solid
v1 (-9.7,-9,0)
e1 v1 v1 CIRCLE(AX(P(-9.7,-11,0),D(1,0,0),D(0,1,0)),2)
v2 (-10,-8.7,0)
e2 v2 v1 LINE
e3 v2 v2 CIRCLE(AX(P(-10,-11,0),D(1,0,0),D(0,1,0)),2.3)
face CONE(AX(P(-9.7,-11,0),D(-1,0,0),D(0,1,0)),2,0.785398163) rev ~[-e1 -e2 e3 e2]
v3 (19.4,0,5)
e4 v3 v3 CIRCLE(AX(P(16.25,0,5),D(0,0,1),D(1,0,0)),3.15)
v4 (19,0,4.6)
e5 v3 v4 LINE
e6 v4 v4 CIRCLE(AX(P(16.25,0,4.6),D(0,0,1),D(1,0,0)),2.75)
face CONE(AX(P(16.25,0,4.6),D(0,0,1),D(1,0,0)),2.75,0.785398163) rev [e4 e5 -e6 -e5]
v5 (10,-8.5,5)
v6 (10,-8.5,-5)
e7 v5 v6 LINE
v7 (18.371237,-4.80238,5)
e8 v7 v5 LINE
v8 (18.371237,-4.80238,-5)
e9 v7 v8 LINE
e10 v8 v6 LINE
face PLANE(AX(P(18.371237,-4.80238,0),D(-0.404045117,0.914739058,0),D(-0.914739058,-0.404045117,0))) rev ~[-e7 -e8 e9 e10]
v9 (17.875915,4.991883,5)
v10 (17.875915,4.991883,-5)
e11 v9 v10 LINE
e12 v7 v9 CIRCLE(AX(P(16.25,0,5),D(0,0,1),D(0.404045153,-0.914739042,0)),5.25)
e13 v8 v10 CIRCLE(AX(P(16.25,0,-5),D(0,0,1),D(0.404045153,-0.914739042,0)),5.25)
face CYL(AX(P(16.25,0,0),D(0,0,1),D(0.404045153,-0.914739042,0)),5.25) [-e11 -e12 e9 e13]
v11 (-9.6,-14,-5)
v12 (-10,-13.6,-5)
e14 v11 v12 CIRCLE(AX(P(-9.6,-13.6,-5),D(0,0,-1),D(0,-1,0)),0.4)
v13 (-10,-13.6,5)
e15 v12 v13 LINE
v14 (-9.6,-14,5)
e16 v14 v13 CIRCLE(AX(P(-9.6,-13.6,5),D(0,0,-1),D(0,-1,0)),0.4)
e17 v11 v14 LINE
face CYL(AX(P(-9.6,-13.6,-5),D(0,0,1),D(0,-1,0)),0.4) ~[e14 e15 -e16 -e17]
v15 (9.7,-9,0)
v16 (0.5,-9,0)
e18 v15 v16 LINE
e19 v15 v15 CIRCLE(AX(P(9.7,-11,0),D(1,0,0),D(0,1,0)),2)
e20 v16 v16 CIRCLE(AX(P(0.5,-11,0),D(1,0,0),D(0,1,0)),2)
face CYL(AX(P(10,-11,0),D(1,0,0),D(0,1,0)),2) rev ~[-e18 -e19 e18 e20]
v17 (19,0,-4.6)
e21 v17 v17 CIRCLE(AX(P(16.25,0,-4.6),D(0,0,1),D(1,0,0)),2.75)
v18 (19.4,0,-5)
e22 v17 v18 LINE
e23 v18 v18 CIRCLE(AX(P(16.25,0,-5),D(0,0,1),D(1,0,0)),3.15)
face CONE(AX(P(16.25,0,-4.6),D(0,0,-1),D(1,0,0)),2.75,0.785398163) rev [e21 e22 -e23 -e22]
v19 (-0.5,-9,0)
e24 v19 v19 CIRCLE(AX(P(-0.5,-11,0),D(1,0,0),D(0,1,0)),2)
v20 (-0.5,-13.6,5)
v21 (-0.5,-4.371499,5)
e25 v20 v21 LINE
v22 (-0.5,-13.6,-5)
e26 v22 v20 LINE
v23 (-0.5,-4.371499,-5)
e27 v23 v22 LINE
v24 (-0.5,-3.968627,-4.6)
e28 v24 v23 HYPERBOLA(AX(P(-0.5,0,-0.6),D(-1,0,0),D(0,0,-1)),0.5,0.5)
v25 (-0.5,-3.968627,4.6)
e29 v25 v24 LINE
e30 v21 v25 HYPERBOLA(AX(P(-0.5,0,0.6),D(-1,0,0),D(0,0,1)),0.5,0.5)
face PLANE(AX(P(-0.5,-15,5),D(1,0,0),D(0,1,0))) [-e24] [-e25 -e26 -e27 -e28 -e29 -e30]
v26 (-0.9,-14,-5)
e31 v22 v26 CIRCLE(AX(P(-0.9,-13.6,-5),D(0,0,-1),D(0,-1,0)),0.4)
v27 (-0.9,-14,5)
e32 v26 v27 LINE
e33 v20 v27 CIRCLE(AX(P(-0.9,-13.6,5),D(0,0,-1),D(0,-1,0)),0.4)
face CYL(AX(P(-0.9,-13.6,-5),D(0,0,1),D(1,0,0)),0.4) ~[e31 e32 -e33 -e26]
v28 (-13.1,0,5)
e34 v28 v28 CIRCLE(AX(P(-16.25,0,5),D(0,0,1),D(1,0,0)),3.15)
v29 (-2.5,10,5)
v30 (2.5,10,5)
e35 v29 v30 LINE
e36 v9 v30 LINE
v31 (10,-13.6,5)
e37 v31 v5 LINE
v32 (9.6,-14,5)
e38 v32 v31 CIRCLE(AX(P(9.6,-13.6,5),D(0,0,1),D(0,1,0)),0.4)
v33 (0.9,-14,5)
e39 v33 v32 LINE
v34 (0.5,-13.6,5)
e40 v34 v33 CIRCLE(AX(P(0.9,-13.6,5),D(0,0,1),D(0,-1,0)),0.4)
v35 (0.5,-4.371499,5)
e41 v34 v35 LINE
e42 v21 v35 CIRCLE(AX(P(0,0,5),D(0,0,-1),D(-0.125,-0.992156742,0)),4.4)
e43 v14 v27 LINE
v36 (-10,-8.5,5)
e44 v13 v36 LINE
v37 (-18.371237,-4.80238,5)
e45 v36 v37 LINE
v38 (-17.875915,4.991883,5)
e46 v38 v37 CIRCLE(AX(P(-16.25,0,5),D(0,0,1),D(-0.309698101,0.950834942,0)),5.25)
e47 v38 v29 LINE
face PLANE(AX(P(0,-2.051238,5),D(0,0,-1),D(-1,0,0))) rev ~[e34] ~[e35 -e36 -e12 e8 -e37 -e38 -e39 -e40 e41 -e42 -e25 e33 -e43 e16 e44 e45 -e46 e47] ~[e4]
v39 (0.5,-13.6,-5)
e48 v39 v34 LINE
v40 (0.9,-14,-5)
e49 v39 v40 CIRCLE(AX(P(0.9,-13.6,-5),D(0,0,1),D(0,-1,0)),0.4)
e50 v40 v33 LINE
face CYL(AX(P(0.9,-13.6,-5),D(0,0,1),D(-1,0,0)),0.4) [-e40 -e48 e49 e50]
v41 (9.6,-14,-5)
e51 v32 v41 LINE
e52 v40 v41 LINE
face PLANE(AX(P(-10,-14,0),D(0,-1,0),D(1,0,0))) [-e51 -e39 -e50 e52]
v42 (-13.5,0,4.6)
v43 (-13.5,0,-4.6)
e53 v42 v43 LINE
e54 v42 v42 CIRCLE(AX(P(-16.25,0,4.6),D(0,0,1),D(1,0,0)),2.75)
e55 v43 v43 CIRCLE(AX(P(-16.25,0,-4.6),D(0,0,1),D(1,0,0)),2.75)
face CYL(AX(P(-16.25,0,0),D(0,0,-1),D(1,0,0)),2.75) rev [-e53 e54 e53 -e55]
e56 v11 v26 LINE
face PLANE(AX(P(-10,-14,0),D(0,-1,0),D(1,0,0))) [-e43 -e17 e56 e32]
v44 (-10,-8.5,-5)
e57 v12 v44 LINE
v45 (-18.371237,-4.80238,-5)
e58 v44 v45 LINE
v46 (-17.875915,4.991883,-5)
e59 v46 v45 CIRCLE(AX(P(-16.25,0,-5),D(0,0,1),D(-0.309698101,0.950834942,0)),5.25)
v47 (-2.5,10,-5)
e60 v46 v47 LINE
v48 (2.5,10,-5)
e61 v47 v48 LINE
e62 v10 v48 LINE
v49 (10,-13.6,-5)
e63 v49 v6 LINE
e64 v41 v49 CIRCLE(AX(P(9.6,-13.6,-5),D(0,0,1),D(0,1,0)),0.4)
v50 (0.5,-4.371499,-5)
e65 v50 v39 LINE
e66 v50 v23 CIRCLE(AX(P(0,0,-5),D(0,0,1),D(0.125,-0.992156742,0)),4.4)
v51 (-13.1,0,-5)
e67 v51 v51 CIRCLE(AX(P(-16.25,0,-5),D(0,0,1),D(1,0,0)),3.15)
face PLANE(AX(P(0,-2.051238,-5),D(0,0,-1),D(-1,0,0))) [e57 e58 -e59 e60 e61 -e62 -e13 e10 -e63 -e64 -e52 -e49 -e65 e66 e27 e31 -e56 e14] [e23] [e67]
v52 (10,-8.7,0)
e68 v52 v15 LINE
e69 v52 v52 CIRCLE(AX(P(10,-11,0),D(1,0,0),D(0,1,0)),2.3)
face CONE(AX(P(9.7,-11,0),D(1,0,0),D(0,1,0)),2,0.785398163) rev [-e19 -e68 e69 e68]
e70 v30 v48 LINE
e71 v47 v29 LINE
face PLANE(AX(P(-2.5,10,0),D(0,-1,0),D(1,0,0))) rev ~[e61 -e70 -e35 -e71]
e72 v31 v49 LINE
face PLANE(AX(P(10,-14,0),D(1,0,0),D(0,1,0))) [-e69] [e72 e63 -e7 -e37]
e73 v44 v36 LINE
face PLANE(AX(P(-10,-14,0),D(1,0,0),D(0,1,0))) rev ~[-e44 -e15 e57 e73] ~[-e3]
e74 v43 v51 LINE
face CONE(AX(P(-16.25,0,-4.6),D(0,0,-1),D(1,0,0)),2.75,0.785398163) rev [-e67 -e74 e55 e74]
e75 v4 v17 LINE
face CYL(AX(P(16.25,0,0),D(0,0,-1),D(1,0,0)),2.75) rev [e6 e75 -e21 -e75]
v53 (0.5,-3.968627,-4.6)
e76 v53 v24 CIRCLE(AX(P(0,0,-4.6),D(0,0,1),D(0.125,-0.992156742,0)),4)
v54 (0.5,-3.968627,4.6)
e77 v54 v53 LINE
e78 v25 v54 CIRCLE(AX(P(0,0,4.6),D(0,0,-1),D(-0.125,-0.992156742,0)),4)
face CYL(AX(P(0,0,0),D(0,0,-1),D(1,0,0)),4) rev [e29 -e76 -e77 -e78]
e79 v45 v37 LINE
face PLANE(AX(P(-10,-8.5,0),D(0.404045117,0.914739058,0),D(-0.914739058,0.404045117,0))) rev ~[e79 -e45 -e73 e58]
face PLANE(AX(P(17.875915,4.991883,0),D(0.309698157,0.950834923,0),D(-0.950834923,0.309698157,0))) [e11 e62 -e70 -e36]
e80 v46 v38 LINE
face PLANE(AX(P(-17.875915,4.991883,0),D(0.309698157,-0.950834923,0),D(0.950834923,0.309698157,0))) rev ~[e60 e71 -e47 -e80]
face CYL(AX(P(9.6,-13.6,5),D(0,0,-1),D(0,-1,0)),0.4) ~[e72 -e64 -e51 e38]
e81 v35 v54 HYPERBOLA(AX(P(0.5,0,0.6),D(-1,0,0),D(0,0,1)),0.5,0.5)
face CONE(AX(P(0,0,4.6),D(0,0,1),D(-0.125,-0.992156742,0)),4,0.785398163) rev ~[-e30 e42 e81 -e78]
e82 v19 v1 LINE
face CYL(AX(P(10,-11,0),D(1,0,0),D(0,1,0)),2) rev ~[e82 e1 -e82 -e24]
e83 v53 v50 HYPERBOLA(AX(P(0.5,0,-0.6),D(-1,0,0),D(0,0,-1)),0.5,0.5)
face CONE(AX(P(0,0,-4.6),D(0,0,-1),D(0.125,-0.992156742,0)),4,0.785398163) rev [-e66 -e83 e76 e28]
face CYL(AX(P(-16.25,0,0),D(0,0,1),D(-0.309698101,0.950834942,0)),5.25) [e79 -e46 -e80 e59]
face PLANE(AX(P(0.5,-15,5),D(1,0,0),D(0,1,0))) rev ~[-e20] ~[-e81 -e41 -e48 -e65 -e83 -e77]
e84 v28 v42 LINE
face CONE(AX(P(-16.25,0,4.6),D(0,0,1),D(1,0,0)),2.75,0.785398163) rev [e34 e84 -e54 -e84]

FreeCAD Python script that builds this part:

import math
import FreeCAD as App
import Part
import Sketcher


def edges_at(feature, points):
    """Names of the edges that pass closest to the given points."""
    edges = feature.Shape.Edges
    near = lambda p: min(range(len(edges)), key=lambda i: edges[i].distToShape(Part.Vertex(*p))[0])
    return sorted({f"Edge{near(p) + 1}" for p in points})


def add_polygon(sketch, points):
    """Adds a closed chain of lines whose ends are joined by coincident constraints."""
    first, n = sketch.GeometryCount, len(points)
    for a, b in zip(points, points[1:] + points[:1]):
        sketch.addGeometry(Part.LineSegment(App.Vector(*a, 0), App.Vector(*b, 0)), False)
    for i in range(n):
        sketch.addConstraint(Sketcher.Constraint("Coincident", first + i, 2, first + (i + 1) % n, 1))

doc = App.newDocument("Part")
body = doc.addObject("PartDesign::Body", "Body")

sketch1 = body.newObject("Sketcher::SketchObject", "Sketch")
sketch1.AttachmentSupport = (doc.getObject("XY_Plane"), [""])
sketch1.MapMode = "FlatFace"
sketch1.addGeometry([
    Part.LineSegment(App.Vector(2.5, 10, 0), App.Vector(-2.5, 10, 0)),
    Part.LineSegment(App.Vector(-2.5, 10, 0), App.Vector(-17.9, 5, 0)),
    Part.ArcOfCircle(Part.Circle(App.Vector(-16.3, 0, 0), App.Vector(0, 0, 1), 5.2), math.radians(108), math.radians(246)),
    Part.LineSegment(App.Vector(-18.4, -4.8, 0), App.Vector(-10, -8.5, 0)),
    Part.LineSegment(App.Vector(-10, -8.5, 0), App.Vector(-10, -14, 0)),
    Part.LineSegment(App.Vector(-10, -14, 0), App.Vector(10, -14, 0)),
    Part.LineSegment(App.Vector(10, -14, 0), App.Vector(10, -8.5, 0)),
    Part.LineSegment(App.Vector(10, -8.5, 0), App.Vector(18.4, -4.8, 0)),
    Part.ArcOfCircle(Part.Circle(App.Vector(16.3, 0, 0), App.Vector(0, 0, 1), 5.2), math.radians(-66), math.radians(72)),
    Part.LineSegment(App.Vector(17.9, 5, 0), App.Vector(2.5, 10, 0)),
    Part.Circle(App.Vector(16.2, 0, 0), App.Vector(0, 0, 1), 2.8),
    Part.Circle(App.Vector(0, 0, 0), App.Vector(0, 0, 1), 4),
    Part.Circle(App.Vector(-16.2, 0, 0), App.Vector(0, 0, 1), 2.8),
], False)
sketch1.addConstraint([
    Sketcher.Constraint("Coincident", 0, 2, 1, 1),
    Sketcher.Constraint("Tangent", 1, 2, 2, 1),
    Sketcher.Constraint("Tangent", 2, 2, 3, 1),
    Sketcher.Constraint("Coincident", 3, 2, 4, 1),
    Sketcher.Constraint("Coincident", 4, 2, 5, 1),
    Sketcher.Constraint("Coincident", 5, 2, 6, 1),
    Sketcher.Constraint("Coincident", 6, 2, 7, 1),
    Sketcher.Constraint("Tangent", 7, 2, 8, 1),
    Sketcher.Constraint("Tangent", 8, 2, 9, 1),
    Sketcher.Constraint("Coincident", 9, 2, 0, 1),
    Sketcher.Constraint("Horizontal", 0),
    Sketcher.Constraint("Vertical", 4),
    Sketcher.Constraint("Horizontal", 5),
    Sketcher.Constraint("Vertical", 6),
    Sketcher.Constraint("Coincident", 11, 3, -1, 1),
    Sketcher.Constraint("Coincident", 10, 3, 8, 3),
    Sketcher.Constraint("Coincident", 12, 3, 2, 3),
    Sketcher.Constraint("Equal", 2, 8),
    Sketcher.Constraint("Equal", 10, 12),
    Sketcher.Constraint("Symmetric", 2, 3, 8, 3, -1, 1),
    Sketcher.Constraint("Symmetric", 3, 2, 6, 2, -2),
    Sketcher.Constraint("Symmetric", 1, 2, 8, 2, -2),
    Sketcher.Constraint("Diameter", 11, 8.0),
    Sketcher.Constraint("Diameter", 10, 5.5),
    Sketcher.Constraint("DistanceX", 0, 2, 0, 1, 5.0),
    Sketcher.Constraint("DistanceX", 5, 1, 5, 2, 20.0),
    Sketcher.Constraint("Radius", 2, 5.25),
    Sketcher.Constraint("DistanceY", 4, 2, 4, 1, 5.5),
    Sketcher.Constraint("DistanceY", -1, 1, 0, 2, 10.0),
    Sketcher.Constraint("DistanceY", 4, 2, -1, 1, 14.0),
    Sketcher.Constraint("DistanceX", 2, 3, 8, 3, 32.5),
])
pad1 = body.newObject("PartDesign::Pad", "Pad")
pad1.Profile = sketch1
pad1.Length = 10
pad1.Midplane = True

sketch2 = body.newObject("Sketcher::SketchObject", "Sketch001")
sketch2.AttachmentSupport = (doc.getObject("XY_Plane"), [""])
sketch2.MapMode = "FlatFace"
sketch2.AttachmentOffset = App.Placement(App.Vector(0, 0, 5), App.Rotation())
add_polygon(sketch2, [(-0.5, -3), (-0.5, -15), (0.5, -15), (0.5, -3)])
sketch2.addConstraint([
    Sketcher.Constraint("Vertical", 0),
    Sketcher.Constraint("Horizontal", 1),
    Sketcher.Constraint("Vertical", 2),
    Sketcher.Constraint("Horizontal", 3),
    Sketcher.Constraint("DistanceX", 1, 1, 1, 2, 1.0),
    Sketcher.Constraint("DistanceY", 0, 2, 0, 1, 12.0),
    Sketcher.Constraint("DistanceY", 0, 2, -1, 1, 15.0),
    Sketcher.Constraint("DistanceX", 0, 2, -1, 1, 0.5),
])
pocket1 = body.newObject("PartDesign::Pocket", "Pocket")
pocket1.Profile = sketch2
pocket1.Type = "ThroughAll"
doc.recompute()

chamfer = body.newObject("PartDesign::Chamfer", "Chamfer")
chamfer.Base = (pocket1, edges_at(pocket1, [
    (-19, 0, 5),
    (13.5, 0, 5),
    (-19, 0, -5),
    (13.5, 0, -5),
    (0, 4, -5),
    (0, 4, 5),
]))
chamfer.Size = 0.4
doc.recompute()

fillet = body.newObject("PartDesign::Fillet", "Fillet")
fillet.Base = (chamfer, edges_at(chamfer, [
    (10, -14, 0),
    (0.5, -14, 0),
    (-0.5, -14, 0),
    (-10, -14, 0),
]))
fillet.Radius = 0.4

sketch3 = body.newObject("Sketcher::SketchObject", "Sketch002")
sketch3.AttachmentSupport = (doc.getObject("YZ_Plane"), [""])
sketch3.MapMode = "FlatFace"
sketch3.AttachmentOffset = App.Placement(App.Vector(0, 0, 10), App.Rotation())
sketch3.addGeometry(Part.Circle(App.Vector(-11, 0, 0), App.Vector(0, 0, 1), 2), False)
sketch3.addConstraint([
    Sketcher.Constraint("PointOnObject", 0, 3, -1),
    Sketcher.Constraint("Diameter", 0, 4.0),
    Sketcher.Constraint("DistanceX", 0, 3, -1, 1, 11.0),
])
pocket2 = body.newObject("PartDesign::Pocket", "Pocket001")
pocket2.Profile = sketch3
pocket2.Type = "ThroughAll"
doc.recompute()

chamfer2 = body.newObject("PartDesign::Chamfer", "Chamfer001")
chamfer2.Base = (pocket2, edges_at(pocket2, [(10, -13, 0), (-10, -13, 0)]))
chamfer2.Size = 0.3

doc.recompute()
